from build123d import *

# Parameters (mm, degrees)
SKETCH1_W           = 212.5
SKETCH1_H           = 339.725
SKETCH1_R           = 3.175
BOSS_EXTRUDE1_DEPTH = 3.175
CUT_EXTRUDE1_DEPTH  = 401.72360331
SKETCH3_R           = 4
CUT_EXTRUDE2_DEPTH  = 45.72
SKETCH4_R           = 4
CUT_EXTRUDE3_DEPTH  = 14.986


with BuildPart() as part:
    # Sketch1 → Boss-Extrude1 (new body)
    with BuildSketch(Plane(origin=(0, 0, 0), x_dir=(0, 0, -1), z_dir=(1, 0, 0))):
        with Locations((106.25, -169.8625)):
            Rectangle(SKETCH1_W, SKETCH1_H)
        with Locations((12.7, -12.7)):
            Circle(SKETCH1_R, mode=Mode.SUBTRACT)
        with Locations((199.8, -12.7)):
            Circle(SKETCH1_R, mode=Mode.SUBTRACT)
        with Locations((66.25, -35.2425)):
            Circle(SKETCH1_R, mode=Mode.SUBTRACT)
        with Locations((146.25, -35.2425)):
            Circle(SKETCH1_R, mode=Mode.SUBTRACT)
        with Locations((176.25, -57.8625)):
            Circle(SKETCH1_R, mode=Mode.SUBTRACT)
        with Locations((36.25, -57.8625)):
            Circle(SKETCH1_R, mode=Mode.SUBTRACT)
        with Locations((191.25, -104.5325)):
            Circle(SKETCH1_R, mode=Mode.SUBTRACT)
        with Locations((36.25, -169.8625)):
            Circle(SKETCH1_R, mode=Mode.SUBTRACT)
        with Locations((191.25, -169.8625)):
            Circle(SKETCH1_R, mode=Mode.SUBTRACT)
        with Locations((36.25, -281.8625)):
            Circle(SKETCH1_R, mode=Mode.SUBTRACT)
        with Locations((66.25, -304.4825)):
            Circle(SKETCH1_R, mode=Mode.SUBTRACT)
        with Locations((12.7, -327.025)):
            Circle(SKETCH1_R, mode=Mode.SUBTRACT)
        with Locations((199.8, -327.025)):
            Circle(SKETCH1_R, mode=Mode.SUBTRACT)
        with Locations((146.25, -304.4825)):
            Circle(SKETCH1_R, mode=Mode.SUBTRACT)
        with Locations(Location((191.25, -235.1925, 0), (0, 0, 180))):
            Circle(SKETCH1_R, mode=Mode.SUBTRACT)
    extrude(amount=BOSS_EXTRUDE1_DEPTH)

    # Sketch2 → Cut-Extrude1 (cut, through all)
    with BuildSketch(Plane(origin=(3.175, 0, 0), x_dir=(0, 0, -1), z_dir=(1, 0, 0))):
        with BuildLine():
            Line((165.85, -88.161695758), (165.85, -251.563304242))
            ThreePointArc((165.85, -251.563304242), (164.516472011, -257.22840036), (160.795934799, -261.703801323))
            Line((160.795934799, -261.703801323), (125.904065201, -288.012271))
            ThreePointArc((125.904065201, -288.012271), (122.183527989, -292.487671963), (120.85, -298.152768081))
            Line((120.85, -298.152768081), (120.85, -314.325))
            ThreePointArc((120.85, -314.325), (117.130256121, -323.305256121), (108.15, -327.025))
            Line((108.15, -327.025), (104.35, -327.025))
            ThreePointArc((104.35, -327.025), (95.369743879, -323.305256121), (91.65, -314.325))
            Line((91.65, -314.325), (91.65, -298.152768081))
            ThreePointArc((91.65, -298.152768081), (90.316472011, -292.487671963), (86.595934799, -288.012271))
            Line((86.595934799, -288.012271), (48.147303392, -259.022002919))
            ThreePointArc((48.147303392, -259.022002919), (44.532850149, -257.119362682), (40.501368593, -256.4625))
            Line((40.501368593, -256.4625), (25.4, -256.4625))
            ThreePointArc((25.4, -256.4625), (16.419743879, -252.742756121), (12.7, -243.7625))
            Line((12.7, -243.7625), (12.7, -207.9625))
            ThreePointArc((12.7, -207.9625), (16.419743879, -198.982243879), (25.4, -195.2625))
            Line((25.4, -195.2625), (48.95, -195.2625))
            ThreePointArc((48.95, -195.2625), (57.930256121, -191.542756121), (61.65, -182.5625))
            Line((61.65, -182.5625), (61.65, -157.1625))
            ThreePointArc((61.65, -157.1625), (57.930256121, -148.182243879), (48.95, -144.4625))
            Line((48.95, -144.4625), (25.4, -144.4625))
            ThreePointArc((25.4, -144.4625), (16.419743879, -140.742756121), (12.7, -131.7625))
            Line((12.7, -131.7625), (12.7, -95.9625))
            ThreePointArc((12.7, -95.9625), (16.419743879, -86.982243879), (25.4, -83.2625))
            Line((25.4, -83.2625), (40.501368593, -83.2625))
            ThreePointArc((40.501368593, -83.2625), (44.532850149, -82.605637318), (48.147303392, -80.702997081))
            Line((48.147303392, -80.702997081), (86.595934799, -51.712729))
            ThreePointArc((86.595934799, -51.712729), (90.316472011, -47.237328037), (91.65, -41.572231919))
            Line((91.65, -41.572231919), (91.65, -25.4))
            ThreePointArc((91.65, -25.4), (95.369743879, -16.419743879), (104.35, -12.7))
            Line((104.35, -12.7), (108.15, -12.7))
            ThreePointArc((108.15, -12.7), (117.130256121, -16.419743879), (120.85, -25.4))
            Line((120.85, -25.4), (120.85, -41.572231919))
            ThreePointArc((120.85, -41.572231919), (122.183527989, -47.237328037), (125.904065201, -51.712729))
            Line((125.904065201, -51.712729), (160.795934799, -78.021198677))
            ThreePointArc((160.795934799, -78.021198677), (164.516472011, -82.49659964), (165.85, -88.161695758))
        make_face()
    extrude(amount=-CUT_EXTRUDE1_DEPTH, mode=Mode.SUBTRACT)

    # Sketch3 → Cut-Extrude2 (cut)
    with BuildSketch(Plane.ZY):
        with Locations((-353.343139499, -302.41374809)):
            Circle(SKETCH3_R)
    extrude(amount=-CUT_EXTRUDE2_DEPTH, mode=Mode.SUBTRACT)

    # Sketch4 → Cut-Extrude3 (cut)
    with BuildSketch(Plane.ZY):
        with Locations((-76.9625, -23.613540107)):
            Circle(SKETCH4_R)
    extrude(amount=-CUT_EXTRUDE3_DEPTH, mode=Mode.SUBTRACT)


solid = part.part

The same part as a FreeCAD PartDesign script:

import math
import FreeCAD as App
import Part
import Sketcher
from FreeCAD import Vector
Q = App.Units.Quantity

doc = App.newDocument("Part")
body = doc.addObject("PartDesign::Body", "Body")

sketch1 = body.newObject("Sketcher::SketchObject", "Sketch")
sketch1.AttachmentSupport = (doc.getObject("YZ_Plane"), [""])
sketch1.MapMode = "FlatFace"
sketch1.addGeometry([
    Part.LineSegment(Vector(0, 0, 0), Vector(-339.7, 0, 0)),
    Part.LineSegment(Vector(-339.7, 0, 0), Vector(-339.7, -212.5, 0)),
    Part.LineSegment(Vector(-339.7, -212.5, 0), Vector(0, -212.5, 0)),
    Part.LineSegment(Vector(0, -212.5, 0), Vector(0, 0, 0)),
    Part.Circle(Vector(-327, -12.7, 0), Vector(0, 0, 1), 3.2),
    Part.Circle(Vector(-281.9, -36.2, 0), Vector(0, 0, 1), 3.2),
    Part.Circle(Vector(-304.5, -66.2, 0), Vector(0, 0, 1), 3.2),
    Part.Circle(Vector(-169.9, -36.2, 0), Vector(0, 0, 1), 3.2),
    Part.Circle(Vector(-304.5, -146.2, 0), Vector(0, 0, 1), 3.2),
    Part.Circle(Vector(-327, -199.8, 0), Vector(0, 0, 1), 3.2),
    Part.Circle(Vector(-235.2, -191.2, 0), Vector(0, 0, 1), 3.2),
    Part.Circle(Vector(-169.9, -191.2, 0), Vector(0, 0, 1), 3.2),
    Part.Circle(Vector(-57.9, -36.2, 0), Vector(0, 0, 1), 3.2),
    Part.Circle(Vector(-12.7, -12.7, 0), Vector(0, 0, 1), 3.2),
    Part.Circle(Vector(-35.2, -66.2, 0), Vector(0, 0, 1), 3.2),
    Part.Circle(Vector(-104.5, -191.2, 0), Vector(0, 0, 1), 3.2),
    Part.Circle(Vector(-35.2, -146.2, 0), Vector(0, 0, 1), 3.2),
    Part.Circle(Vector(-57.9, -176.2, 0), Vector(0, 0, 1), 3.2),
    Part.Circle(Vector(-12.7, -199.8, 0), Vector(0, 0, 1), 3.2),
], False)
sketch1.addConstraint([
    Sketcher.Constraint("Coincident", 0, 2, 1, 1),
    Sketcher.Constraint("Coincident", 1, 2, 2, 1),
    Sketcher.Constraint("Coincident", 2, 2, 3, 1),
    Sketcher.Constraint("Coincident", 3, 2, 0, 1),
    Sketcher.Constraint("Horizontal", 0),
    Sketcher.Constraint("Vertical", 1),
    Sketcher.Constraint("Horizontal", 2),
    Sketcher.Constraint("Vertical", 3),
    Sketcher.Constraint("Coincident", 3, 2, -1, 1),
    Sketcher.Constraint("Equal", 4, 5),
    Sketcher.Constraint("Equal", 5, 6),
    Sketcher.Constraint("Equal", 6, 7),
    Sketcher.Constraint("Equal", 7, 8),
    Sketcher.Constraint("Equal", 8, 9),
    Sketcher.Constraint("Equal", 9, 10),
    Sketcher.Constraint("Equal", 10, 11),
    Sketcher.Constraint("Equal", 11, 12),
    Sketcher.Constraint("Equal", 12, 13),
    Sketcher.Constraint("Equal", 13, 14),
    Sketcher.Constraint("Equal", 14, 15),
    Sketcher.Constraint("Equal", 15, 16),
    Sketcher.Constraint("Equal", 16, 17),
    Sketcher.Constraint("Equal", 17, 18),
    Sketcher.Constraint("Horizontal", 5, 3, 7, 3),
    Sketcher.Constraint("Horizontal", 10, 3, 11, 3),
    Sketcher.Constraint("Horizontal", 7, 3, 12, 3),
    Sketcher.Constraint("Horizontal", 4, 3, 13, 3),
    Sketcher.Constraint("Horizontal", 6, 3, 14, 3),
    Sketcher.Constraint("Horizontal", 11, 3, 15, 3),
    Sketcher.Constraint("Horizontal", 8, 3, 16, 3),
    Sketcher.Constraint("Horizontal", 9, 3, 18, 3),
    Sketcher.Constraint("Vertical", 6, 3, 8, 3),
    Sketcher.Constraint("Vertical", 4, 3, 9, 3),
    Sketcher.Constraint("Vertical", 7, 3, 11, 3),
    Sketcher.Constraint("Vertical", 14, 3, 16, 3),
    Sketcher.Constraint("Vertical", 12, 3, 17, 3),
    Sketcher.Constraint("Vertical", 13, 3, 18, 3),
    Sketcher.Constraint("Diameter", 4, Q("0.25 in")),
    Sketcher.Constraint("DistanceY", 4, 3, -1, 1, Q("0.5 in")),
    Sketcher.Constraint("DistanceX", 13, 3, -1, 1, Q("0.5 in")),
    Sketcher.Constraint("DistanceX", 6, 3, 7, 3, Q("5.3 in")),
    Sketcher.Constraint("DistanceX", 7, 3, 14, 3, Q("5.3 in")),
    Sketcher.Constraint("DistanceX", 0, 2, 4, 3, Q("0.5 in")),
    Sketcher.Constraint("DistanceY", 1, 2, 9, 3, Q("0.5 in")),
    Sketcher.Constraint("DistanceX", 0, 2, 0, 1, Q("13.375 in")),
    Sketcher.Constraint("DistanceX", 7, 3, -1, 1, Q("6.6875 in")),
    Sketcher.Constraint("DistanceY", 1, 2, 1, 1, 212.5),
    Sketcher.Constraint("DistanceX", 5, 3, -1, 1, 281.8625),
    Sketcher.Constraint("DistanceY", 5, 3, -1, 1, 36.25),
    Sketcher.Constraint("DistanceY", 6, 3, -1, 1, 66.25),
    Sketcher.Constraint("DistanceY", 8, 3, -1, 1, 146.25),
    Sketcher.Constraint("DistanceX", 10, 3, -1, 1, 235.1925),
    Sketcher.Constraint("DistanceY", 10, 3, -1, 1, 191.25),
    Sketcher.Constraint("DistanceX", 12, 3, -1, 1, 57.8625),
    Sketcher.Constraint("DistanceX", 15, 3, -1, 1, 104.5325),
    Sketcher.Constraint("DistanceY", 17, 3, -1, 1, 176.25),
])
pad1 = body.newObject("PartDesign::Pad", "Pad")
pad1.Profile = sketch1
pad1.Length = Q("0.125 in")

sketch2 = body.newObject("Sketcher::SketchObject", "Sketch001")
sketch2.AttachmentSupport = (doc.getObject("YZ_Plane"), [""])
sketch2.MapMode = "FlatFace"
sketch2.AttachmentOffset = App.Placement(Vector(0, 0, 0.125 * 25.4), App.Rotation())
sketch2.addGeometry([
    Part.LineSegment(Vector(-251.6, -165.8, 0), Vector(-88.2, -165.8, 0)),
    Part.ArcOfCircle(Part.Circle(Vector(-88.2, -153.2, 0), Vector(0, 0, 1), 12.7), math.radians(-90), math.radians(-37)),
    Part.LineSegment(Vector(-78, -160.8, 0), Vector(-51.7, -125.9, 0)),
    Part.ArcOfCircle(Part.Circle(Vector(-41.6, -133.5, 0), Vector(0, 0, 1), 12.7), math.radians(90), math.radians(143)),
    Part.LineSegment(Vector(-41.6, -120.8, 0), Vector(-25.4, -120.8, 0)),
    Part.ArcOfCircle(Part.Circle(Vector(-25.4, -108.2, 0), Vector(0, 0, 1), 12.7), math.radians(-90), math.radians(0)),
    Part.LineSegment(Vector(-12.7, -108.2, 0), Vector(-12.7, -104.3, 0)),
    Part.ArcOfCircle(Part.Circle(Vector(-25.4, -104.3, 0), Vector(0, 0, 1), 12.7), math.radians(0), math.radians(90)),
    Part.LineSegment(Vector(-25.4, -91.7, 0), Vector(-41.6, -91.7, 0)),
    Part.ArcOfCircle(Part.Circle(Vector(-41.6, -79, 0), Vector(0, 0, 1), 12.7), math.radians(-143), math.radians(-90)),
    Part.LineSegment(Vector(-51.7, -86.6, 0), Vector(-80.7, -48.1, 0)),
    Part.ArcOfCircle(Part.Circle(Vector(-70.6, -40.5, 0), Vector(0, 0, 1), 12.7), math.radians(-180), math.radians(-143)),
    Part.LineSegment(Vector(-83.3, -40.5, 0), Vector(-83.3, -25.4, 0)),
    Part.ArcOfCircle(Part.Circle(Vector(-96, -25.4, 0), Vector(0, 0, 1), 12.7), math.radians(0), math.radians(90)),
    Part.LineSegment(Vector(-96, -12.7, 0), Vector(-131.8, -12.7, 0)),
    Part.ArcOfCircle(Part.Circle(Vector(-131.8, -25.4, 0), Vector(0, 0, 1), 12.7), math.radians(90), math.radians(180)),
    Part.LineSegment(Vector(-144.5, -25.4, 0), Vector(-144.5, -49, 0)),
    Part.ArcOfCircle(Part.Circle(Vector(-157.2, -49, 0), Vector(0, 0, 1), 12.7), math.radians(-90), math.radians(0)),
    Part.LineSegment(Vector(-157.2, -61.6, 0), Vector(-182.6, -61.6, 0)),
    Part.ArcOfCircle(Part.Circle(Vector(-182.6, -49, 0), Vector(0, 0, 1), 12.7), math.radians(180), math.radians(270)),
    Part.LineSegment(Vector(-195.3, -49, 0), Vector(-195.3, -25.4, 0)),
    Part.ArcOfCircle(Part.Circle(Vector(-208, -25.4, 0), Vector(0, 0, 1), 12.7), math.radians(0), math.radians(90)),
    Part.LineSegment(Vector(-208, -12.7, 0), Vector(-243.8, -12.7, 0)),
    Part.ArcOfCircle(Part.Circle(Vector(-243.8, -25.4, 0), Vector(0, 0, 1), 12.7), math.radians(90), math.radians(180)),
    Part.LineSegment(Vector(-256.5, -25.4, 0), Vector(-256.5, -40.5, 0)),
    Part.ArcOfCircle(Part.Circle(Vector(-269.2, -40.5, 0), Vector(0, 0, 1), 12.7), math.radians(-37), math.radians(0)),
    Part.LineSegment(Vector(-259, -48.1, 0), Vector(-288, -86.6, 0)),
    Part.ArcOfCircle(Part.Circle(Vector(-298.2, -79, 0), Vector(0, 0, 1), 12.7), math.radians(-90), math.radians(-37)),
    Part.LineSegment(Vector(-298.2, -91.7, 0), Vector(-314.3, -91.7, 0)),
    Part.ArcOfCircle(Part.Circle(Vector(-314.3, -104.3, 0), Vector(0, 0, 1), 12.7), math.radians(90), math.radians(180)),
    Part.LineSegment(Vector(-327, -104.3, 0), Vector(-327, -108.2, 0)),
    Part.ArcOfCircle(Part.Circle(Vector(-314.3, -108.2, 0), Vector(0, 0, 1), 12.7), math.radians(180), math.radians(270)),
    Part.LineSegment(Vector(-314.3, -120.8, 0), Vector(-298.2, -120.8, 0)),
    Part.ArcOfCircle(Part.Circle(Vector(-298.2, -133.5, 0), Vector(0, 0, 1), 12.7), math.radians(37), math.radians(90)),
    Part.LineSegment(Vector(-288, -125.9, 0), Vector(-261.7, -160.8, 0)),
    Part.ArcOfCircle(Part.Circle(Vector(-251.6, -153.2, 0), Vector(0, 0, 1), 12.7), math.radians(-143), math.radians(-90)),
], False)
sketch2.addConstraint([
    Sketcher.Constraint("Tangent", 0, 2, 1, 1),
    Sketcher.Constraint("Tangent", 1, 2, 2, 1),
    Sketcher.Constraint("Tangent", 2, 2, 3, 2),
    Sketcher.Constraint("Tangent", 3, 1, 4, 1),
    Sketcher.Constraint("Tangent", 4, 2, 5, 1),
    Sketcher.Constraint("Tangent", 5, 2, 6, 1),
    Sketcher.Constraint("Tangent", 6, 2, 7, 1),
    Sketcher.Constraint("Tangent", 7, 2, 8, 1),
    Sketcher.Constraint("Tangent", 8, 2, 9, 2),
    Sketcher.Constraint("Tangent", 9, 1, 10, 1),
    Sketcher.Constraint("Tangent", 10, 2, 11, 2),
    Sketcher.Constraint("Tangent", 11, 1, 12, 1),
    Sketcher.Constraint("Tangent", 12, 2, 13, 1),
    Sketcher.Constraint("Tangent", 13, 2, 14, 1),
    Sketcher.Constraint("Tangent", 14, 2, 15, 1),
    Sketcher.Constraint("Tangent", 15, 2, 16, 1),
    Sketcher.Constraint("Tangent", 16, 2, 17, 2),
    Sketcher.Constraint("Tangent", 17, 1, 18, 1),
    Sketcher.Constraint("Tangent", 18, 2, 19, 2),
    Sketcher.Constraint("Tangent", 19, 1, 20, 1),
    Sketcher.Constraint("Tangent", 20, 2, 21, 1),
    Sketcher.Constraint("Tangent", 21, 2, 22, 1),
    Sketcher.Constraint("Tangent", 22, 2, 23, 1),
    Sketcher.Constraint("Tangent", 23, 2, 24, 1),
    Sketcher.Constraint("Tangent", 24, 2, 25, 2),
    Sketcher.Constraint("Tangent", 25, 1, 26, 1),
    Sketcher.Constraint("Tangent", 26, 2, 27, 2),
    Sketcher.Constraint("Tangent", 27, 1, 28, 1),
    Sketcher.Constraint("Tangent", 28, 2, 29, 1),
    Sketcher.Constraint("Tangent", 29, 2, 30, 1),
    Sketcher.Constraint("Tangent", 30, 2, 31, 1),
    Sketcher.Constraint("Tangent", 31, 2, 32, 1),
    Sketcher.Constraint("Tangent", 32, 2, 33, 2),
    Sketcher.Constraint("Tangent", 33, 1, 34, 1),
    Sketcher.Constraint("Tangent", 34, 2, 35, 1),
    Sketcher.Constraint("Tangent", 35, 2, 0, 1),
    Sketcher.Constraint("Horizontal", 0),
    Sketcher.Constraint("Horizontal", 4),
    Sketcher.Constraint("Vertical", 6),
    Sketcher.Constraint("Horizontal", 8),
    Sketcher.Constraint("Vertical", 12),
    Sketcher.Constraint("Horizontal", 14),
    Sketcher.Constraint("Vertical", 16),
    Sketcher.Constraint("Horizontal", 18),
    Sketcher.Constraint("Vertical", 20),
    Sketcher.Constraint("Horizontal", 22),
    Sketcher.Constraint("Vertical", 24),
    Sketcher.Constraint("Horizontal", 28),
    Sketcher.Constraint("Vertical", 30),
    Sketcher.Constraint("Horizontal", 32),
    Sketcher.Constraint("Equal", 1, 3),
    Sketcher.Constraint("Equal", 3, 5),
    Sketcher.Constraint("Equal", 5, 7),
    Sketcher.Constraint("Equal", 7, 9),
    Sketcher.Constraint("Equal", 9, 11),
    Sketcher.Constraint("Equal", 11, 13),
    Sketcher.Constraint("Equal", 13, 15),
    Sketcher.Constraint("Equal", 15, 17),
    Sketcher.Constraint("Equal", 17, 19),
    Sketcher.Constraint("Equal", 19, 21),
    Sketcher.Constraint("Equal", 21, 23),
    Sketcher.Constraint("Equal", 23, 25),
    Sketcher.Constraint("Equal", 25, 27),
    Sketcher.Constraint("Equal", 27, 29),
    Sketcher.Constraint("Equal", 29, 31),
    Sketcher.Constraint("Equal", 31, 33),
    Sketcher.Constraint("Equal", 33, 35),
    Sketcher.Constraint("Parallel", 2, 26),
    Sketcher.Constraint("Parallel", 10, 34),
    Sketcher.Constraint("Horizontal", 15, 3, 21, 3),
    Sketcher.Constraint("Horizontal", 11, 3, 25, 3),
    Sketcher.Constraint("Horizontal", 9, 3, 27, 3),
    Sketcher.Constraint("Horizontal", 5, 3, 31, 3),
    Sketcher.Constraint("Horizontal", 10, 2, 25, 1),
    Sketcher.Constraint("Vertical", 3, 3, 9, 3),
    Sketcher.Constraint("Vertical", 27, 3, 33, 3),
    Sketcher.Constraint("Equal", 14, 22),
    Sketcher.Constraint("Equal", 8, 28),
    Sketcher.Constraint("Radius", 1, Q("0.5 in")),
    Sketcher.Constraint("DistanceX", 18, 2, 18, 1, Q("1 in")),
    Sketcher.Constraint("DistanceX", 5, 3, -1, 1, Q("1 in")),
    Sketcher.Constraint("DistanceY", 13, 3, -1, 1, Q("1 in")),
    Sketcher.Constraint("DistanceX", 15, 3, -1, 1, Q("5.1875 in")),
    Sketcher.Constraint("DistanceX", 14, 2, 14, 1, 35.8),
    Sketcher.Constraint("DistanceY", 6, 1, 6, 2, 3.8),
    Sketcher.Constraint("DistanceY", 16, 2, 16, 1, 23.55),
    Sketcher.Constraint("DistanceX", 0, 1, 0, 2, 163.401608),
    Sketcher.Constraint("DistanceX", 4, 1, 4, 2, 16.172232),
    Sketcher.Constraint("DistanceY", 12, 1, 12, 2, 15.101369),
    Sketcher.Constraint("DistanceY", 1, 3, -1, 1, 153.15),
])
pocket1 = body.newObject("PartDesign::Pocket", "Pocket")
pocket1.Profile = sketch2
pocket1.Type = "ThroughAll"

sketch3 = body.newObject("Sketcher::SketchObject", "Sketch002")
sketch3.AttachmentSupport = (doc.getObject("YZ_Plane"), [""])
sketch3.MapMode = "FlatFace"
sketch3.addGeometry(Part.Circle(Vector(-302.4, -353.3, 0), Vector(0, 0, 1), 4), False)
sketch3.addConstraint([
    Sketcher.Constraint("Diameter", 0, 8.0),
    Sketcher.Constraint("DistanceX", 0, 3, -1, 1, 302.413748),
    Sketcher.Constraint("DistanceY", 0, 3, -1, 1, 353.343139),
])
pocket2 = body.newObject("PartDesign::Pocket", "Pocket001")
pocket2.Profile = sketch3
pocket2.Length = Q("1.8 in")
pocket2.Reversed = True

sketch4 = body.newObject("Sketcher::SketchObject", "Sketch003")
sketch4.AttachmentSupport = (doc.getObject("YZ_Plane"), [""])
sketch4.MapMode = "FlatFace"
sketch4.addGeometry(Part.Circle(Vector(-23.6, -77, 0), Vector(0, 0, 1), 4), False)
sketch4.addConstraint([
    Sketcher.Constraint("Diameter", 0, 8.0),
    Sketcher.Constraint("DistanceY", 0, 3, -1, 1, 76.9625),
    Sketcher.Constraint("DistanceX", 0, 3, -1, 1, 23.61354),
])
pocket3 = body.newObject("PartDesign::Pocket", "Pocket002")
pocket3.Profile = sketch4
pocket3.Length = Q("0.59 in")
pocket3.Reversed = True

doc.recompute()
